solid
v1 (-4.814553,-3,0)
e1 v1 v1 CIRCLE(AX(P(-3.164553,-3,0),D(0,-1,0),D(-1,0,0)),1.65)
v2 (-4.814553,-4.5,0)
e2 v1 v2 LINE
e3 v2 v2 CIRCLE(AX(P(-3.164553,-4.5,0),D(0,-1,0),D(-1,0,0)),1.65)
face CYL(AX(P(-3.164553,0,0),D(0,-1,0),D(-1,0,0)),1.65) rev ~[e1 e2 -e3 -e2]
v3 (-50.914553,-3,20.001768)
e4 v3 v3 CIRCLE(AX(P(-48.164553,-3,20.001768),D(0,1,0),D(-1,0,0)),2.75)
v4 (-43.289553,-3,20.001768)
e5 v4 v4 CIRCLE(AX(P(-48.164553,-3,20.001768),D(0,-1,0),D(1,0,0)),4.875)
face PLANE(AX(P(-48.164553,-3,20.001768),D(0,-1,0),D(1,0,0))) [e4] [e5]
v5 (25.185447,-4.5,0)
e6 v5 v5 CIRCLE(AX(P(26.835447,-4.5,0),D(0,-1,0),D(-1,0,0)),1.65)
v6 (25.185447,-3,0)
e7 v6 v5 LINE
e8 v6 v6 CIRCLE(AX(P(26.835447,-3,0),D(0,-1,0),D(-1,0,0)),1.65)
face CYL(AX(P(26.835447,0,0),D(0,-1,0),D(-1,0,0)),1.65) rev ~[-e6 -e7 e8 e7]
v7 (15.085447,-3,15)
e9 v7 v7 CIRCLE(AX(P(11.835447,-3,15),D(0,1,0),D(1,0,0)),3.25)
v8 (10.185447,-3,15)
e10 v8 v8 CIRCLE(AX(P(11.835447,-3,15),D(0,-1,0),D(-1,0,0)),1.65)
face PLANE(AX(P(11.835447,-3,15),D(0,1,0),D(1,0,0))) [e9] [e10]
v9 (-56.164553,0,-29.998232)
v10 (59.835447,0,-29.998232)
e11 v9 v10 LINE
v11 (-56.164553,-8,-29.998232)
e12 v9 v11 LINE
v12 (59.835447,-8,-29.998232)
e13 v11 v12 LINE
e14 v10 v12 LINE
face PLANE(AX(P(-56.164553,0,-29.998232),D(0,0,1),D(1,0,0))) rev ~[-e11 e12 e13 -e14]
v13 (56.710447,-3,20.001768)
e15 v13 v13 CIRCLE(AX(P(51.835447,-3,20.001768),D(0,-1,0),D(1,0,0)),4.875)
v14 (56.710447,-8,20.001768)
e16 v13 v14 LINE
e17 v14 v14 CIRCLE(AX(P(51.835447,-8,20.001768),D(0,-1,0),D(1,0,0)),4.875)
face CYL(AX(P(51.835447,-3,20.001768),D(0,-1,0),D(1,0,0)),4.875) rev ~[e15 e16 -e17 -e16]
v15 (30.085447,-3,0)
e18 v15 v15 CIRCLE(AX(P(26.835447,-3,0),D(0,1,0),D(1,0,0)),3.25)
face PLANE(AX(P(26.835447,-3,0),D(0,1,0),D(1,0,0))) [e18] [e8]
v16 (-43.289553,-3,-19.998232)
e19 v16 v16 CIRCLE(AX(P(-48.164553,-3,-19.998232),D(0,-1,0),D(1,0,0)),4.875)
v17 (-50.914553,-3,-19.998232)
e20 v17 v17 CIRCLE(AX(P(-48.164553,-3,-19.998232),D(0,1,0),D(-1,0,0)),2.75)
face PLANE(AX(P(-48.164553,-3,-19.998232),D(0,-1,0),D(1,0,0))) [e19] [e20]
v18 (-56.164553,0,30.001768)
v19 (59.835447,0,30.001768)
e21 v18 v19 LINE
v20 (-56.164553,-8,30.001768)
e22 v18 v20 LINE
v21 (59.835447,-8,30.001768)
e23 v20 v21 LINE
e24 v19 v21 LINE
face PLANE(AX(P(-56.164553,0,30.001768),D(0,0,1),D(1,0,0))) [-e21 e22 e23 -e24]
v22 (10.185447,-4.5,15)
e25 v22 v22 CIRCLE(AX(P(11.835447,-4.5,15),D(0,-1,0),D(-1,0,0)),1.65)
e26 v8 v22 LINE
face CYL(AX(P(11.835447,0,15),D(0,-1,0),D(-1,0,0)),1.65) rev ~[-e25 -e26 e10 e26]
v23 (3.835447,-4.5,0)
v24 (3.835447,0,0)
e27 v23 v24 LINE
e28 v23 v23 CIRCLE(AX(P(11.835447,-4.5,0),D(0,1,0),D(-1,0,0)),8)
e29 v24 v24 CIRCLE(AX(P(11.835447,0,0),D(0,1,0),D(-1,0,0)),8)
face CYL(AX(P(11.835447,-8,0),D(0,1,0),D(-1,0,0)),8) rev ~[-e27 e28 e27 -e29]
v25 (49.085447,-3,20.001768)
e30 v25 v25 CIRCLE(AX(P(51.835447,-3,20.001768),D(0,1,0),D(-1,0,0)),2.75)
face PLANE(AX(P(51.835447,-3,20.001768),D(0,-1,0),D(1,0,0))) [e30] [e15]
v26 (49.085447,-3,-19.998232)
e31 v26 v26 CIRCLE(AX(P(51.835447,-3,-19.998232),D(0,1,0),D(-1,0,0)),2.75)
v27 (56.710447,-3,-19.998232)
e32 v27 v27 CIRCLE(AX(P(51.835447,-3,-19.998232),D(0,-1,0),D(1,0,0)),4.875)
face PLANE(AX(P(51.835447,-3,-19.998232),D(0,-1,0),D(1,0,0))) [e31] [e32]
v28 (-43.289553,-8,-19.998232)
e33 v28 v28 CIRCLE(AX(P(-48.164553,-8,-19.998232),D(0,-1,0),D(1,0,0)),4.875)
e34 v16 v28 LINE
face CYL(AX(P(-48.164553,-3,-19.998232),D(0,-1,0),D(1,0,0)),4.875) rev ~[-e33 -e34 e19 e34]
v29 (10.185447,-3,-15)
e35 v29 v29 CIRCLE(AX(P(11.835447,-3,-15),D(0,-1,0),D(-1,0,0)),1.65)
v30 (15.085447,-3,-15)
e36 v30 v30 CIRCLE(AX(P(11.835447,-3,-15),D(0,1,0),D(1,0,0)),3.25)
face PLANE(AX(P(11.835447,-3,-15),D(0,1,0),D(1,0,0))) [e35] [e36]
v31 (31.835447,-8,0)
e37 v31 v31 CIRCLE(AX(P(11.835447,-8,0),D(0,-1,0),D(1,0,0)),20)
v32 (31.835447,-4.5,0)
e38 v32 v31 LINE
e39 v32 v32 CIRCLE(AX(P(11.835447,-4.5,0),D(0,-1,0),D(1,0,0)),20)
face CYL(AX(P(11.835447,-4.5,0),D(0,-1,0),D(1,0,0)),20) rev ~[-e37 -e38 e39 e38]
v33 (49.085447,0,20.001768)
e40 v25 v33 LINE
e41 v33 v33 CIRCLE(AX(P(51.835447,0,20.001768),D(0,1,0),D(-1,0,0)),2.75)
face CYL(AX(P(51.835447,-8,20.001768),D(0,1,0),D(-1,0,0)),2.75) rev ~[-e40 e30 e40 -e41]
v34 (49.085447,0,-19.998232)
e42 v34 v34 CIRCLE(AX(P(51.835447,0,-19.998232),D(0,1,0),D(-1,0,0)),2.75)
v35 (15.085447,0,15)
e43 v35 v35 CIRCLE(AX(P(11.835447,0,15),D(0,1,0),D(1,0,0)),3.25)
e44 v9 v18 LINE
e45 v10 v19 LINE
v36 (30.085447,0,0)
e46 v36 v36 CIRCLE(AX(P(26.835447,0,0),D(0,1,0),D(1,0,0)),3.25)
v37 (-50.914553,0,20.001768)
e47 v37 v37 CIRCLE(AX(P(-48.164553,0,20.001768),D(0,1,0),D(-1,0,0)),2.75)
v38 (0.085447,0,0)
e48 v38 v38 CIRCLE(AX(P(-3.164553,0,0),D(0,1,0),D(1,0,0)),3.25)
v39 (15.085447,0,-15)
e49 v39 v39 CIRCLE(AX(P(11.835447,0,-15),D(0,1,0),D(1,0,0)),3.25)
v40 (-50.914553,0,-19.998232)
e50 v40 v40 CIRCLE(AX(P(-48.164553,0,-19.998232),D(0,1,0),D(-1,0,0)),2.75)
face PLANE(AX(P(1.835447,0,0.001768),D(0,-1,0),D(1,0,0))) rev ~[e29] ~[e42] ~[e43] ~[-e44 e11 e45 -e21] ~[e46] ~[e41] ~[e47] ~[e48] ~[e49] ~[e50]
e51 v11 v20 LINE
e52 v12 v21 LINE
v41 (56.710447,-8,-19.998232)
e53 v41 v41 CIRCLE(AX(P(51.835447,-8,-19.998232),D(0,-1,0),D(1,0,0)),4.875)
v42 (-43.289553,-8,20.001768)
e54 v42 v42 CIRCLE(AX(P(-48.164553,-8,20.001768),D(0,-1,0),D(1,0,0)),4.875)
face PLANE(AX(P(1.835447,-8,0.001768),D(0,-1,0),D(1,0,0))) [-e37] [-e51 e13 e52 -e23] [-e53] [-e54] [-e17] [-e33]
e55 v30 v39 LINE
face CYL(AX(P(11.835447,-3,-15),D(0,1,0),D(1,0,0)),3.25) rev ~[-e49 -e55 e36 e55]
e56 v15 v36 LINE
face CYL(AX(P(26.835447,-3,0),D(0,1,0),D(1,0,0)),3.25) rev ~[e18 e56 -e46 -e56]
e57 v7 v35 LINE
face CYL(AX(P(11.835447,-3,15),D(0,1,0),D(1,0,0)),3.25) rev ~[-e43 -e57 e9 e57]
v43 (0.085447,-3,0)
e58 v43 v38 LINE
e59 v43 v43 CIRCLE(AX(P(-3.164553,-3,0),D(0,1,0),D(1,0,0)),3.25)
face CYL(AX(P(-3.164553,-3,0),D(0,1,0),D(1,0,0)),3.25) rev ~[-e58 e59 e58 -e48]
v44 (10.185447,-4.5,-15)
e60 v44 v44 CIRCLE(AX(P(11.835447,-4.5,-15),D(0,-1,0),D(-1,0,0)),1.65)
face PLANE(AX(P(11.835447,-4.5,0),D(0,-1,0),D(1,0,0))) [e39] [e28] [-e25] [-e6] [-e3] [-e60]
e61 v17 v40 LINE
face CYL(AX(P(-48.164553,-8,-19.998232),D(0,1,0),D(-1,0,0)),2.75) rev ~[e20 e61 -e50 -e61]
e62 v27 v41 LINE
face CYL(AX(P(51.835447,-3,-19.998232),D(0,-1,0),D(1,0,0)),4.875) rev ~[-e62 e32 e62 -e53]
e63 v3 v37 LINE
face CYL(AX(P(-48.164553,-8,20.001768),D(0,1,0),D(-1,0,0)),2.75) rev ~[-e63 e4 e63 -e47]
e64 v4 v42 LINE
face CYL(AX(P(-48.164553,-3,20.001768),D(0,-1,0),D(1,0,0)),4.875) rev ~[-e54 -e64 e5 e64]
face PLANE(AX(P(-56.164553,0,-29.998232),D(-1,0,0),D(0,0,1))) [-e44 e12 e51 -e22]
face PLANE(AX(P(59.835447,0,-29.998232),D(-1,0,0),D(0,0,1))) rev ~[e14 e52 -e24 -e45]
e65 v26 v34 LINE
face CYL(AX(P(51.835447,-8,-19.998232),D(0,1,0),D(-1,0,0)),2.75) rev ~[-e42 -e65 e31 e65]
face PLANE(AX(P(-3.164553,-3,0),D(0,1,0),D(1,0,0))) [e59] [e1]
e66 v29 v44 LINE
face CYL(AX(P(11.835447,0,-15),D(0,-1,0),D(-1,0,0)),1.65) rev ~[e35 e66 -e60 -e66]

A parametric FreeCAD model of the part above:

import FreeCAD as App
import Part
import Sketcher
from FreeCAD import Vector
Q = App.Units.Quantity


def add_polygon(sketch, points):
    """Adds a closed chain of lines whose ends are joined by coincident constraints."""
    first, n = sketch.GeometryCount, len(points)
    for a, b in zip(points, points[1:] + points[:1]):
        sketch.addGeometry(Part.LineSegment(App.Vector(*a, 0), App.Vector(*b, 0)), False)
    for i in range(n):
        sketch.addConstraint(Sketcher.Constraint("Coincident", first + i, 2, first + (i + 1) % n, 1))

doc = App.newDocument("Part")
body = doc.addObject("PartDesign::Body", "Body")

sketch1 = body.newObject("Sketcher::SketchObject", "Sketch")
sketch1.AttachmentSupport = (doc.getObject("XZ_Plane"), [""])
sketch1.MapMode = "FlatFace"
add_polygon(sketch1, [(-56, 30), (-56, -30), (60, -30), (60, 30)])
sketch1.addConstraint([
    Sketcher.Constraint("Vertical", 0),
    Sketcher.Constraint("Horizontal", 1),
    Sketcher.Constraint("Vertical", 2),
    Sketcher.Constraint("Horizontal", 3),
    Sketcher.Constraint("DistanceX", 1, 1, 1, 2, Q("116 mm")),
    Sketcher.Constraint("DistanceY", 0, 2, 0, 1, Q("60 mm")),
    Sketcher.Constraint("DistanceX", 0, 2, -1, 1, Q("56.164553 mm")),
    Sketcher.Constraint("DistanceY", 0, 2, -1, 1, Q("29.998232 mm")),
])
pad1 = body.newObject("PartDesign::Pad", "Pad")
pad1.Profile = sketch1
pad1.Length = 8

sketch2 = body.newObject("Sketcher::SketchObject", "Sketch001")
sketch2.AttachmentSupport = (doc.getObject("XZ_Plane"), [""])
sketch2.MapMode = "FlatFace"
sketch2.AttachmentOffset = App.Placement(Vector(0, 0, 8), App.Rotation())
sketch2.addGeometry([
    Part.Circle(Vector(-48.2, 20, 0), Vector(0, 0, 1), 2.8),
    Part.Circle(Vector(-48.2, -20, 0), Vector(0, 0, 1), 2.8),
    Part.Circle(Vector(51.8, 20, 0), Vector(0, 0, 1), 2.8),
    Part.Circle(Vector(51.8, -20, 0), Vector(0, 0, 1), 2.8),
], False)
sketch2.addConstraint([
    Sketcher.Constraint("Equal", 0, 1),
    Sketcher.Constraint("Equal", 1, 2),
    Sketcher.Constraint("Equal", 2, 3),
    Sketcher.Constraint("Horizontal", 0, 3, 2, 3),
    Sketcher.Constraint("Horizontal", 1, 3, 3, 3),
    Sketcher.Constraint("Vertical", 0, 3, 1, 3),
    Sketcher.Constraint("Vertical", 2, 3, 3, 3),
    Sketcher.Constraint("Diameter", 0, Q("5.5 mm")),
    Sketcher.Constraint("DistanceY", 1, 3, 0, 3, Q("40 mm")),
    Sketcher.Constraint("DistanceX", 0, 3, 2, 3, Q("100 mm")),
    Sketcher.Constraint("DistanceX", 0, 3, -1, 1, Q("48.164553 mm")),
    Sketcher.Constraint("DistanceY", -1, 1, 0, 3, Q("20.001768 mm")),
])
doc.recompute()
hole = body.newObject("PartDesign::Hole", "Hole")
hole.Profile = sketch2
hole.ThreadType = "None"
hole.Diameter = 5.5
hole.DepthType = "Dimension"
hole.Depth = 13.8
hole.DrillPoint = "Angled"
hole.DrillPointAngle = 118
hole.HoleCutType = "Counterbore"
hole.HoleCutDiameter = 9.75
hole.HoleCutDepth = 5

sketch3 = body.newObject("Sketcher::SketchObject", "Sketch002")
sketch3.AttachmentSupport = (doc.getObject("XZ_Plane"), [""])
sketch3.MapMode = "FlatFace"
sketch3.AttachmentOffset = App.Placement(Vector(0, 0, 8), App.Rotation())
sketch3.addGeometry(Part.Circle(Vector(12, 0, 0), Vector(0, 0, 1), 8), False)
sketch3.addConstraint([
    Sketcher.Constraint("PointOnObject", 0, 3, -1),
    Sketcher.Constraint("Diameter", 0, Q("16 mm")),
    Sketcher.Constraint("DistanceX", -1, 1, 0, 3, Q("11.835447 mm")),
])
doc.recompute()
hole2 = body.newObject("PartDesign::Hole", "Hole001")
hole2.Profile = sketch3
hole2.ThreadType = "None"
hole2.Diameter = 16
hole2.DepthType = "Dimension"
hole2.Depth = 13.8
hole2.DrillPoint = "Angled"
hole2.DrillPointAngle = 118
hole2.HoleCutType = "Counterbore"
hole2.HoleCutDiameter = 40
hole2.HoleCutDepth = 3.5

sketch4 = body.newObject("Sketcher::SketchObject", "Sketch003")
sketch4.AttachmentSupport = (doc.getObject("XZ_Plane"), [""])
sketch4.MapMode = "FlatFace"
sketch4.addGeometry([
    Part.Circle(Vector(11.8, 15, 0), Vector(0, 0, 1), 1.6),
    Part.Circle(Vector(26.8, 0, 0), Vector(0, 0, 1), 1.6),
    Part.Circle(Vector(11.8, -15, 0), Vector(0, 0, 1), 1.6),
    Part.Circle(Vector(-3.2, 0, 0), Vector(0, 0, 1), 1.6),
], False)
sketch4.addConstraint([
    Sketcher.Constraint("Equal", 0, 1),
    Sketcher.Constraint("Equal", 1, 2),
    Sketcher.Constraint("Equal", 2, 3),
    Sketcher.Constraint("Symmetric", 0, 3, 2, 3, -1),
    Sketcher.Constraint("PointOnObject", 1, 3, -1),
    Sketcher.Constraint("PointOnObject", 3, 3, -1),
    Sketcher.Constraint("Diameter", 0, Q("3.3 mm")),
    Sketcher.Constraint("DistanceY", -1, 1, 0, 3, Q("15 mm")),
    Sketcher.Constraint("DistanceX", 0, 3, 1, 3, Q("15 mm")),
    Sketcher.Constraint("DistanceX", 3, 3, 0, 3, Q("15 mm")),
    Sketcher.Constraint("DistanceX", -1, 1, 0, 3, Q("11.835447 mm")),
])
doc.recompute()
hole3 = body.newObject("PartDesign::Hole", "Hole002")
hole3.Profile = sketch4
hole3.ThreadType = "None"
hole3.Diameter = 3.3
hole3.DepthType = "Dimension"
hole3.Depth = 13.8
hole3.DrillPoint = "Angled"
hole3.DrillPointAngle = 118
hole3.HoleCutType = "Counterbore"
hole3.HoleCutDiameter = 6.5
hole3.HoleCutDepth = 3
hole3.Reversed = True

doc.recompute()
